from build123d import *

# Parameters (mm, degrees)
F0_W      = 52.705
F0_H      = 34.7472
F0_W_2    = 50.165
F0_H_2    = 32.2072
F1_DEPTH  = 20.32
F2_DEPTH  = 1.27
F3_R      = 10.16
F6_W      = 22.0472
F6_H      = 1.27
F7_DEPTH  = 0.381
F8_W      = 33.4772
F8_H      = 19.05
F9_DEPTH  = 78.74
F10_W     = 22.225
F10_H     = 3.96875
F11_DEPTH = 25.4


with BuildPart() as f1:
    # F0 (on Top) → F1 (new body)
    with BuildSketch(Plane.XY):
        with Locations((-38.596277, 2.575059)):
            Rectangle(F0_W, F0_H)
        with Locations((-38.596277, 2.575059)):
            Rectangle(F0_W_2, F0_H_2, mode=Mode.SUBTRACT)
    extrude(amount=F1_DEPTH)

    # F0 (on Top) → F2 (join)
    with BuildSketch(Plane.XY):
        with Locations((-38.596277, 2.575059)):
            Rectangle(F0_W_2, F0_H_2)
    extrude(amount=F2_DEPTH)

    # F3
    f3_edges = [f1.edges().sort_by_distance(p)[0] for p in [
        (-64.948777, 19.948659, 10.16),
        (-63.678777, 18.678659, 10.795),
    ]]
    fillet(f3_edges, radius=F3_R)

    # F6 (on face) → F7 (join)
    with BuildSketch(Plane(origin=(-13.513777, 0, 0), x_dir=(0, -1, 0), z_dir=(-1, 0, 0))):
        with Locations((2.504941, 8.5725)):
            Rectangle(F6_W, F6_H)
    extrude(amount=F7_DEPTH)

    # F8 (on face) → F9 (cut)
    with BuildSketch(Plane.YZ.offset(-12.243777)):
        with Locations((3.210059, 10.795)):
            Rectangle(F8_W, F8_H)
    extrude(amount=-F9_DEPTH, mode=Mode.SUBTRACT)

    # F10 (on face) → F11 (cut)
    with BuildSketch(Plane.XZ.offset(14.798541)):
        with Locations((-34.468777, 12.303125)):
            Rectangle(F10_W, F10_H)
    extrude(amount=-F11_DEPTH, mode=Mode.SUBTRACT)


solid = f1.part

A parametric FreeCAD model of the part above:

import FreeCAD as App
import Part
import Sketcher
Q = App.Units.Quantity


def edges_at(feature, points):
    """Names of the edges that pass closest to the given points."""
    edges = feature.Shape.Edges
    near = lambda p: min(range(len(edges)), key=lambda i: edges[i].distToShape(Part.Vertex(*p))[0])
    return sorted({f"Edge{near(p) + 1}" for p in points})


def add_polygon(sketch, points):
    """Adds a closed chain of lines whose ends are joined by coincident constraints."""
    first, n = sketch.GeometryCount, len(points)
    for a, b in zip(points, points[1:] + points[:1]):
        sketch.addGeometry(Part.LineSegment(App.Vector(*a, 0), App.Vector(*b, 0)), False)
    for i in range(n):
        sketch.addConstraint(Sketcher.Constraint("Coincident", first + i, 2, first + (i + 1) % n, 1))

doc = App.newDocument("Part")
body = doc.addObject("PartDesign::Body", "Body")

sketch1 = body.newObject("Sketcher::SketchObject", "Sketch")
sketch1.AttachmentSupport = (doc.getObject("XY_Plane"), [""])
sketch1.MapMode = "FlatFace"
add_polygon(sketch1, [(-64.948777, 19.948659), (-64.948777, -14.798541), (-12.243777, -14.798541), (-12.243777, 19.948659)])
add_polygon(sketch1, [(-13.513777, -13.528541), (-63.678777, -13.528541), (-63.678777, 18.678659), (-13.513777, 18.678659)])
sketch1.addConstraint([
    Sketcher.Constraint("Vertical", 0),
    Sketcher.Constraint("Horizontal", 1),
    Sketcher.Constraint("Vertical", 2),
    Sketcher.Constraint("Horizontal", 3),
    Sketcher.Constraint("Horizontal", 4),
    Sketcher.Constraint("Vertical", 5),
    Sketcher.Constraint("Horizontal", 6),
    Sketcher.Constraint("Vertical", 7),
    Sketcher.Constraint("DistanceX", 1, 1, 1, 2, Q("2.075 in")),
    Sketcher.Constraint("DistanceX", 4, 2, 4, 1, Q("1.975 in")),
    Sketcher.Constraint("DistanceY", 0, 2, 0, 1, Q("1.368 in")),
    Sketcher.Constraint("DistanceY", 5, 1, 5, 2, Q("1.268 in")),
    Sketcher.Constraint("DistanceX", 0, 2, 4, 2, Q("0.05 in")),
    Sketcher.Constraint("DistanceY", 0, 2, 4, 2, Q("0.05 in")),
    Sketcher.Constraint("DistanceY", 0, 2, -1, 1, Q("14.798541 mm")),
    Sketcher.Constraint("DistanceX", 0, 2, -1, 1, Q("64.948777 mm")),
])
pad1 = body.newObject("PartDesign::Pad", "Pad")
pad1.Profile = sketch1
pad1.Length = Q("0.8 in")

sketch2 = body.newObject("Sketcher::SketchObject", "Sketch001")
sketch2.AttachmentSupport = (doc.getObject("XY_Plane"), [""])
sketch2.MapMode = "FlatFace"
add_polygon(sketch2, [(-63.678777, 18.678659), (-63.678777, -13.528541), (-13.513777, -13.528541), (-13.513777, 18.678659)])
sketch2.addConstraint([
    Sketcher.Constraint("Vertical", 0),
    Sketcher.Constraint("Horizontal", 1),
    Sketcher.Constraint("Vertical", 2),
    Sketcher.Constraint("Horizontal", 3),
    Sketcher.Constraint("DistanceX", 1, 1, 1, 2, Q("1.975 in")),
    Sketcher.Constraint("DistanceY", 0, 2, 0, 1, Q("1.268 in")),
    Sketcher.Constraint("DistanceY", 0, 2, -1, 1, Q("13.528541 mm")),
    Sketcher.Constraint("DistanceX", 0, 2, -1, 1, Q("63.678777 mm")),
])
pad2 = body.newObject("PartDesign::Pad", "Pad001")
pad2.Profile = sketch2
pad2.Length = Q("0.05 in")
doc.recompute()

fillet = body.newObject("PartDesign::Fillet", "Fillet")
fillet.Base = (pad2, edges_at(pad2, [(-64.949, 19.949, 10.16), (-63.679, 18.679, 10.795)]))
fillet.Radius = Q("0.4 in")

sketch3 = body.newObject("Sketcher::SketchObject", "Sketch002")
sketch3.AttachmentSupport = (doc.getObject("YZ_Plane"), [""])
sketch3.MapMode = "FlatFace"
sketch3.AttachmentOffset = App.Placement(App.Vector(0, 0, -13.513777), App.Rotation())
add_polygon(sketch3, [(8.518659, 9.2075), (8.518659, 7.9375), (-13.528541, 7.9375), (-13.528541, 9.2075)])
sketch3.addConstraint([
    Sketcher.Constraint("Vertical", 0),
    Sketcher.Constraint("Horizontal", 1),
    Sketcher.Constraint("Vertical", 2),
    Sketcher.Constraint("Horizontal", 3),
    Sketcher.Constraint("DistanceY", 0, 2, 0, 1, Q("0.05 in")),
    Sketcher.Constraint("DistanceX", 1, 2, 1, 1, Q("0.868 in")),
    Sketcher.Constraint("DistanceY", -1, 1, 0, 2, Q("0.3125 in")),
    Sketcher.Constraint("DistanceX", -1, 1, 0, 2, Q("8.518659 mm")),
])
pad3 = body.newObject("PartDesign::Pad", "Pad002")
pad3.Profile = sketch3
pad3.Length = Q("0.015 in")
pad3.Reversed = True

sketch4 = body.newObject("Sketcher::SketchObject", "Sketch003")
sketch4.AttachmentSupport = (doc.getObject("YZ_Plane"), [""])
sketch4.MapMode = "FlatFace"
sketch4.AttachmentOffset = App.Placement(App.Vector(0, 0, -12.243777), App.Rotation())
add_polygon(sketch4, [(-13.528541, 20.32), (-13.528541, 1.27), (19.948659, 1.27), (19.948659, 20.32)])
sketch4.addConstraint([
    Sketcher.Constraint("Vertical", 0),
    Sketcher.Constraint("Horizontal", 1),
    Sketcher.Constraint("Vertical", 2),
    Sketcher.Constraint("Horizontal", 3),
    Sketcher.Constraint("DistanceY", 0, 2, 0, 1, Q("0.75 in")),
    Sketcher.Constraint("DistanceY", -1, 1, 2, 2, Q("0.8 in")),
    Sketcher.Constraint("DistanceX", 1, 1, 1, 2, Q("1.318 in")),
    Sketcher.Constraint("DistanceX", 0, 2, -1, 1, Q("13.528541 mm")),
])
pocket1 = body.newObject("PartDesign::Pocket", "Pocket")
pocket1.Profile = sketch4
pocket1.Length = Q("3.1 in")

sketch5 = body.newObject("Sketcher::SketchObject", "Sketch004")
sketch5.AttachmentSupport = (doc.getObject("XZ_Plane"), [""])
sketch5.MapMode = "FlatFace"
sketch5.AttachmentOffset = App.Placement(App.Vector(0, 0, 14.798541), App.Rotation())
add_polygon(sketch5, [(-45.581277, 14.2875), (-45.581277, 10.31875), (-23.356277, 10.31875), (-23.356277, 14.2875)])
sketch5.addConstraint([
    Sketcher.Constraint("Vertical", 0),
    Sketcher.Constraint("Horizontal", 1),
    Sketcher.Constraint("Vertical", 2),
    Sketcher.Constraint("Horizontal", 3),
    Sketcher.Constraint("DistanceX", 1, 1, 1, 2, Q("0.875 in")),
    Sketcher.Constraint("DistanceY", 0, 2, 0, 1, Q("0.15625 in")),
    Sketcher.Constraint("DistanceY", -1, 1, 0, 2, Q("0.40625 in")),
    Sketcher.Constraint("DistanceX", 0, 2, -1, 1, Q("45.581277 mm")),
])
pocket2 = body.newObject("PartDesign::Pocket", "Pocket001")
pocket2.Profile = sketch5
pocket2.Length = Q("1 in")

doc.recompute()
